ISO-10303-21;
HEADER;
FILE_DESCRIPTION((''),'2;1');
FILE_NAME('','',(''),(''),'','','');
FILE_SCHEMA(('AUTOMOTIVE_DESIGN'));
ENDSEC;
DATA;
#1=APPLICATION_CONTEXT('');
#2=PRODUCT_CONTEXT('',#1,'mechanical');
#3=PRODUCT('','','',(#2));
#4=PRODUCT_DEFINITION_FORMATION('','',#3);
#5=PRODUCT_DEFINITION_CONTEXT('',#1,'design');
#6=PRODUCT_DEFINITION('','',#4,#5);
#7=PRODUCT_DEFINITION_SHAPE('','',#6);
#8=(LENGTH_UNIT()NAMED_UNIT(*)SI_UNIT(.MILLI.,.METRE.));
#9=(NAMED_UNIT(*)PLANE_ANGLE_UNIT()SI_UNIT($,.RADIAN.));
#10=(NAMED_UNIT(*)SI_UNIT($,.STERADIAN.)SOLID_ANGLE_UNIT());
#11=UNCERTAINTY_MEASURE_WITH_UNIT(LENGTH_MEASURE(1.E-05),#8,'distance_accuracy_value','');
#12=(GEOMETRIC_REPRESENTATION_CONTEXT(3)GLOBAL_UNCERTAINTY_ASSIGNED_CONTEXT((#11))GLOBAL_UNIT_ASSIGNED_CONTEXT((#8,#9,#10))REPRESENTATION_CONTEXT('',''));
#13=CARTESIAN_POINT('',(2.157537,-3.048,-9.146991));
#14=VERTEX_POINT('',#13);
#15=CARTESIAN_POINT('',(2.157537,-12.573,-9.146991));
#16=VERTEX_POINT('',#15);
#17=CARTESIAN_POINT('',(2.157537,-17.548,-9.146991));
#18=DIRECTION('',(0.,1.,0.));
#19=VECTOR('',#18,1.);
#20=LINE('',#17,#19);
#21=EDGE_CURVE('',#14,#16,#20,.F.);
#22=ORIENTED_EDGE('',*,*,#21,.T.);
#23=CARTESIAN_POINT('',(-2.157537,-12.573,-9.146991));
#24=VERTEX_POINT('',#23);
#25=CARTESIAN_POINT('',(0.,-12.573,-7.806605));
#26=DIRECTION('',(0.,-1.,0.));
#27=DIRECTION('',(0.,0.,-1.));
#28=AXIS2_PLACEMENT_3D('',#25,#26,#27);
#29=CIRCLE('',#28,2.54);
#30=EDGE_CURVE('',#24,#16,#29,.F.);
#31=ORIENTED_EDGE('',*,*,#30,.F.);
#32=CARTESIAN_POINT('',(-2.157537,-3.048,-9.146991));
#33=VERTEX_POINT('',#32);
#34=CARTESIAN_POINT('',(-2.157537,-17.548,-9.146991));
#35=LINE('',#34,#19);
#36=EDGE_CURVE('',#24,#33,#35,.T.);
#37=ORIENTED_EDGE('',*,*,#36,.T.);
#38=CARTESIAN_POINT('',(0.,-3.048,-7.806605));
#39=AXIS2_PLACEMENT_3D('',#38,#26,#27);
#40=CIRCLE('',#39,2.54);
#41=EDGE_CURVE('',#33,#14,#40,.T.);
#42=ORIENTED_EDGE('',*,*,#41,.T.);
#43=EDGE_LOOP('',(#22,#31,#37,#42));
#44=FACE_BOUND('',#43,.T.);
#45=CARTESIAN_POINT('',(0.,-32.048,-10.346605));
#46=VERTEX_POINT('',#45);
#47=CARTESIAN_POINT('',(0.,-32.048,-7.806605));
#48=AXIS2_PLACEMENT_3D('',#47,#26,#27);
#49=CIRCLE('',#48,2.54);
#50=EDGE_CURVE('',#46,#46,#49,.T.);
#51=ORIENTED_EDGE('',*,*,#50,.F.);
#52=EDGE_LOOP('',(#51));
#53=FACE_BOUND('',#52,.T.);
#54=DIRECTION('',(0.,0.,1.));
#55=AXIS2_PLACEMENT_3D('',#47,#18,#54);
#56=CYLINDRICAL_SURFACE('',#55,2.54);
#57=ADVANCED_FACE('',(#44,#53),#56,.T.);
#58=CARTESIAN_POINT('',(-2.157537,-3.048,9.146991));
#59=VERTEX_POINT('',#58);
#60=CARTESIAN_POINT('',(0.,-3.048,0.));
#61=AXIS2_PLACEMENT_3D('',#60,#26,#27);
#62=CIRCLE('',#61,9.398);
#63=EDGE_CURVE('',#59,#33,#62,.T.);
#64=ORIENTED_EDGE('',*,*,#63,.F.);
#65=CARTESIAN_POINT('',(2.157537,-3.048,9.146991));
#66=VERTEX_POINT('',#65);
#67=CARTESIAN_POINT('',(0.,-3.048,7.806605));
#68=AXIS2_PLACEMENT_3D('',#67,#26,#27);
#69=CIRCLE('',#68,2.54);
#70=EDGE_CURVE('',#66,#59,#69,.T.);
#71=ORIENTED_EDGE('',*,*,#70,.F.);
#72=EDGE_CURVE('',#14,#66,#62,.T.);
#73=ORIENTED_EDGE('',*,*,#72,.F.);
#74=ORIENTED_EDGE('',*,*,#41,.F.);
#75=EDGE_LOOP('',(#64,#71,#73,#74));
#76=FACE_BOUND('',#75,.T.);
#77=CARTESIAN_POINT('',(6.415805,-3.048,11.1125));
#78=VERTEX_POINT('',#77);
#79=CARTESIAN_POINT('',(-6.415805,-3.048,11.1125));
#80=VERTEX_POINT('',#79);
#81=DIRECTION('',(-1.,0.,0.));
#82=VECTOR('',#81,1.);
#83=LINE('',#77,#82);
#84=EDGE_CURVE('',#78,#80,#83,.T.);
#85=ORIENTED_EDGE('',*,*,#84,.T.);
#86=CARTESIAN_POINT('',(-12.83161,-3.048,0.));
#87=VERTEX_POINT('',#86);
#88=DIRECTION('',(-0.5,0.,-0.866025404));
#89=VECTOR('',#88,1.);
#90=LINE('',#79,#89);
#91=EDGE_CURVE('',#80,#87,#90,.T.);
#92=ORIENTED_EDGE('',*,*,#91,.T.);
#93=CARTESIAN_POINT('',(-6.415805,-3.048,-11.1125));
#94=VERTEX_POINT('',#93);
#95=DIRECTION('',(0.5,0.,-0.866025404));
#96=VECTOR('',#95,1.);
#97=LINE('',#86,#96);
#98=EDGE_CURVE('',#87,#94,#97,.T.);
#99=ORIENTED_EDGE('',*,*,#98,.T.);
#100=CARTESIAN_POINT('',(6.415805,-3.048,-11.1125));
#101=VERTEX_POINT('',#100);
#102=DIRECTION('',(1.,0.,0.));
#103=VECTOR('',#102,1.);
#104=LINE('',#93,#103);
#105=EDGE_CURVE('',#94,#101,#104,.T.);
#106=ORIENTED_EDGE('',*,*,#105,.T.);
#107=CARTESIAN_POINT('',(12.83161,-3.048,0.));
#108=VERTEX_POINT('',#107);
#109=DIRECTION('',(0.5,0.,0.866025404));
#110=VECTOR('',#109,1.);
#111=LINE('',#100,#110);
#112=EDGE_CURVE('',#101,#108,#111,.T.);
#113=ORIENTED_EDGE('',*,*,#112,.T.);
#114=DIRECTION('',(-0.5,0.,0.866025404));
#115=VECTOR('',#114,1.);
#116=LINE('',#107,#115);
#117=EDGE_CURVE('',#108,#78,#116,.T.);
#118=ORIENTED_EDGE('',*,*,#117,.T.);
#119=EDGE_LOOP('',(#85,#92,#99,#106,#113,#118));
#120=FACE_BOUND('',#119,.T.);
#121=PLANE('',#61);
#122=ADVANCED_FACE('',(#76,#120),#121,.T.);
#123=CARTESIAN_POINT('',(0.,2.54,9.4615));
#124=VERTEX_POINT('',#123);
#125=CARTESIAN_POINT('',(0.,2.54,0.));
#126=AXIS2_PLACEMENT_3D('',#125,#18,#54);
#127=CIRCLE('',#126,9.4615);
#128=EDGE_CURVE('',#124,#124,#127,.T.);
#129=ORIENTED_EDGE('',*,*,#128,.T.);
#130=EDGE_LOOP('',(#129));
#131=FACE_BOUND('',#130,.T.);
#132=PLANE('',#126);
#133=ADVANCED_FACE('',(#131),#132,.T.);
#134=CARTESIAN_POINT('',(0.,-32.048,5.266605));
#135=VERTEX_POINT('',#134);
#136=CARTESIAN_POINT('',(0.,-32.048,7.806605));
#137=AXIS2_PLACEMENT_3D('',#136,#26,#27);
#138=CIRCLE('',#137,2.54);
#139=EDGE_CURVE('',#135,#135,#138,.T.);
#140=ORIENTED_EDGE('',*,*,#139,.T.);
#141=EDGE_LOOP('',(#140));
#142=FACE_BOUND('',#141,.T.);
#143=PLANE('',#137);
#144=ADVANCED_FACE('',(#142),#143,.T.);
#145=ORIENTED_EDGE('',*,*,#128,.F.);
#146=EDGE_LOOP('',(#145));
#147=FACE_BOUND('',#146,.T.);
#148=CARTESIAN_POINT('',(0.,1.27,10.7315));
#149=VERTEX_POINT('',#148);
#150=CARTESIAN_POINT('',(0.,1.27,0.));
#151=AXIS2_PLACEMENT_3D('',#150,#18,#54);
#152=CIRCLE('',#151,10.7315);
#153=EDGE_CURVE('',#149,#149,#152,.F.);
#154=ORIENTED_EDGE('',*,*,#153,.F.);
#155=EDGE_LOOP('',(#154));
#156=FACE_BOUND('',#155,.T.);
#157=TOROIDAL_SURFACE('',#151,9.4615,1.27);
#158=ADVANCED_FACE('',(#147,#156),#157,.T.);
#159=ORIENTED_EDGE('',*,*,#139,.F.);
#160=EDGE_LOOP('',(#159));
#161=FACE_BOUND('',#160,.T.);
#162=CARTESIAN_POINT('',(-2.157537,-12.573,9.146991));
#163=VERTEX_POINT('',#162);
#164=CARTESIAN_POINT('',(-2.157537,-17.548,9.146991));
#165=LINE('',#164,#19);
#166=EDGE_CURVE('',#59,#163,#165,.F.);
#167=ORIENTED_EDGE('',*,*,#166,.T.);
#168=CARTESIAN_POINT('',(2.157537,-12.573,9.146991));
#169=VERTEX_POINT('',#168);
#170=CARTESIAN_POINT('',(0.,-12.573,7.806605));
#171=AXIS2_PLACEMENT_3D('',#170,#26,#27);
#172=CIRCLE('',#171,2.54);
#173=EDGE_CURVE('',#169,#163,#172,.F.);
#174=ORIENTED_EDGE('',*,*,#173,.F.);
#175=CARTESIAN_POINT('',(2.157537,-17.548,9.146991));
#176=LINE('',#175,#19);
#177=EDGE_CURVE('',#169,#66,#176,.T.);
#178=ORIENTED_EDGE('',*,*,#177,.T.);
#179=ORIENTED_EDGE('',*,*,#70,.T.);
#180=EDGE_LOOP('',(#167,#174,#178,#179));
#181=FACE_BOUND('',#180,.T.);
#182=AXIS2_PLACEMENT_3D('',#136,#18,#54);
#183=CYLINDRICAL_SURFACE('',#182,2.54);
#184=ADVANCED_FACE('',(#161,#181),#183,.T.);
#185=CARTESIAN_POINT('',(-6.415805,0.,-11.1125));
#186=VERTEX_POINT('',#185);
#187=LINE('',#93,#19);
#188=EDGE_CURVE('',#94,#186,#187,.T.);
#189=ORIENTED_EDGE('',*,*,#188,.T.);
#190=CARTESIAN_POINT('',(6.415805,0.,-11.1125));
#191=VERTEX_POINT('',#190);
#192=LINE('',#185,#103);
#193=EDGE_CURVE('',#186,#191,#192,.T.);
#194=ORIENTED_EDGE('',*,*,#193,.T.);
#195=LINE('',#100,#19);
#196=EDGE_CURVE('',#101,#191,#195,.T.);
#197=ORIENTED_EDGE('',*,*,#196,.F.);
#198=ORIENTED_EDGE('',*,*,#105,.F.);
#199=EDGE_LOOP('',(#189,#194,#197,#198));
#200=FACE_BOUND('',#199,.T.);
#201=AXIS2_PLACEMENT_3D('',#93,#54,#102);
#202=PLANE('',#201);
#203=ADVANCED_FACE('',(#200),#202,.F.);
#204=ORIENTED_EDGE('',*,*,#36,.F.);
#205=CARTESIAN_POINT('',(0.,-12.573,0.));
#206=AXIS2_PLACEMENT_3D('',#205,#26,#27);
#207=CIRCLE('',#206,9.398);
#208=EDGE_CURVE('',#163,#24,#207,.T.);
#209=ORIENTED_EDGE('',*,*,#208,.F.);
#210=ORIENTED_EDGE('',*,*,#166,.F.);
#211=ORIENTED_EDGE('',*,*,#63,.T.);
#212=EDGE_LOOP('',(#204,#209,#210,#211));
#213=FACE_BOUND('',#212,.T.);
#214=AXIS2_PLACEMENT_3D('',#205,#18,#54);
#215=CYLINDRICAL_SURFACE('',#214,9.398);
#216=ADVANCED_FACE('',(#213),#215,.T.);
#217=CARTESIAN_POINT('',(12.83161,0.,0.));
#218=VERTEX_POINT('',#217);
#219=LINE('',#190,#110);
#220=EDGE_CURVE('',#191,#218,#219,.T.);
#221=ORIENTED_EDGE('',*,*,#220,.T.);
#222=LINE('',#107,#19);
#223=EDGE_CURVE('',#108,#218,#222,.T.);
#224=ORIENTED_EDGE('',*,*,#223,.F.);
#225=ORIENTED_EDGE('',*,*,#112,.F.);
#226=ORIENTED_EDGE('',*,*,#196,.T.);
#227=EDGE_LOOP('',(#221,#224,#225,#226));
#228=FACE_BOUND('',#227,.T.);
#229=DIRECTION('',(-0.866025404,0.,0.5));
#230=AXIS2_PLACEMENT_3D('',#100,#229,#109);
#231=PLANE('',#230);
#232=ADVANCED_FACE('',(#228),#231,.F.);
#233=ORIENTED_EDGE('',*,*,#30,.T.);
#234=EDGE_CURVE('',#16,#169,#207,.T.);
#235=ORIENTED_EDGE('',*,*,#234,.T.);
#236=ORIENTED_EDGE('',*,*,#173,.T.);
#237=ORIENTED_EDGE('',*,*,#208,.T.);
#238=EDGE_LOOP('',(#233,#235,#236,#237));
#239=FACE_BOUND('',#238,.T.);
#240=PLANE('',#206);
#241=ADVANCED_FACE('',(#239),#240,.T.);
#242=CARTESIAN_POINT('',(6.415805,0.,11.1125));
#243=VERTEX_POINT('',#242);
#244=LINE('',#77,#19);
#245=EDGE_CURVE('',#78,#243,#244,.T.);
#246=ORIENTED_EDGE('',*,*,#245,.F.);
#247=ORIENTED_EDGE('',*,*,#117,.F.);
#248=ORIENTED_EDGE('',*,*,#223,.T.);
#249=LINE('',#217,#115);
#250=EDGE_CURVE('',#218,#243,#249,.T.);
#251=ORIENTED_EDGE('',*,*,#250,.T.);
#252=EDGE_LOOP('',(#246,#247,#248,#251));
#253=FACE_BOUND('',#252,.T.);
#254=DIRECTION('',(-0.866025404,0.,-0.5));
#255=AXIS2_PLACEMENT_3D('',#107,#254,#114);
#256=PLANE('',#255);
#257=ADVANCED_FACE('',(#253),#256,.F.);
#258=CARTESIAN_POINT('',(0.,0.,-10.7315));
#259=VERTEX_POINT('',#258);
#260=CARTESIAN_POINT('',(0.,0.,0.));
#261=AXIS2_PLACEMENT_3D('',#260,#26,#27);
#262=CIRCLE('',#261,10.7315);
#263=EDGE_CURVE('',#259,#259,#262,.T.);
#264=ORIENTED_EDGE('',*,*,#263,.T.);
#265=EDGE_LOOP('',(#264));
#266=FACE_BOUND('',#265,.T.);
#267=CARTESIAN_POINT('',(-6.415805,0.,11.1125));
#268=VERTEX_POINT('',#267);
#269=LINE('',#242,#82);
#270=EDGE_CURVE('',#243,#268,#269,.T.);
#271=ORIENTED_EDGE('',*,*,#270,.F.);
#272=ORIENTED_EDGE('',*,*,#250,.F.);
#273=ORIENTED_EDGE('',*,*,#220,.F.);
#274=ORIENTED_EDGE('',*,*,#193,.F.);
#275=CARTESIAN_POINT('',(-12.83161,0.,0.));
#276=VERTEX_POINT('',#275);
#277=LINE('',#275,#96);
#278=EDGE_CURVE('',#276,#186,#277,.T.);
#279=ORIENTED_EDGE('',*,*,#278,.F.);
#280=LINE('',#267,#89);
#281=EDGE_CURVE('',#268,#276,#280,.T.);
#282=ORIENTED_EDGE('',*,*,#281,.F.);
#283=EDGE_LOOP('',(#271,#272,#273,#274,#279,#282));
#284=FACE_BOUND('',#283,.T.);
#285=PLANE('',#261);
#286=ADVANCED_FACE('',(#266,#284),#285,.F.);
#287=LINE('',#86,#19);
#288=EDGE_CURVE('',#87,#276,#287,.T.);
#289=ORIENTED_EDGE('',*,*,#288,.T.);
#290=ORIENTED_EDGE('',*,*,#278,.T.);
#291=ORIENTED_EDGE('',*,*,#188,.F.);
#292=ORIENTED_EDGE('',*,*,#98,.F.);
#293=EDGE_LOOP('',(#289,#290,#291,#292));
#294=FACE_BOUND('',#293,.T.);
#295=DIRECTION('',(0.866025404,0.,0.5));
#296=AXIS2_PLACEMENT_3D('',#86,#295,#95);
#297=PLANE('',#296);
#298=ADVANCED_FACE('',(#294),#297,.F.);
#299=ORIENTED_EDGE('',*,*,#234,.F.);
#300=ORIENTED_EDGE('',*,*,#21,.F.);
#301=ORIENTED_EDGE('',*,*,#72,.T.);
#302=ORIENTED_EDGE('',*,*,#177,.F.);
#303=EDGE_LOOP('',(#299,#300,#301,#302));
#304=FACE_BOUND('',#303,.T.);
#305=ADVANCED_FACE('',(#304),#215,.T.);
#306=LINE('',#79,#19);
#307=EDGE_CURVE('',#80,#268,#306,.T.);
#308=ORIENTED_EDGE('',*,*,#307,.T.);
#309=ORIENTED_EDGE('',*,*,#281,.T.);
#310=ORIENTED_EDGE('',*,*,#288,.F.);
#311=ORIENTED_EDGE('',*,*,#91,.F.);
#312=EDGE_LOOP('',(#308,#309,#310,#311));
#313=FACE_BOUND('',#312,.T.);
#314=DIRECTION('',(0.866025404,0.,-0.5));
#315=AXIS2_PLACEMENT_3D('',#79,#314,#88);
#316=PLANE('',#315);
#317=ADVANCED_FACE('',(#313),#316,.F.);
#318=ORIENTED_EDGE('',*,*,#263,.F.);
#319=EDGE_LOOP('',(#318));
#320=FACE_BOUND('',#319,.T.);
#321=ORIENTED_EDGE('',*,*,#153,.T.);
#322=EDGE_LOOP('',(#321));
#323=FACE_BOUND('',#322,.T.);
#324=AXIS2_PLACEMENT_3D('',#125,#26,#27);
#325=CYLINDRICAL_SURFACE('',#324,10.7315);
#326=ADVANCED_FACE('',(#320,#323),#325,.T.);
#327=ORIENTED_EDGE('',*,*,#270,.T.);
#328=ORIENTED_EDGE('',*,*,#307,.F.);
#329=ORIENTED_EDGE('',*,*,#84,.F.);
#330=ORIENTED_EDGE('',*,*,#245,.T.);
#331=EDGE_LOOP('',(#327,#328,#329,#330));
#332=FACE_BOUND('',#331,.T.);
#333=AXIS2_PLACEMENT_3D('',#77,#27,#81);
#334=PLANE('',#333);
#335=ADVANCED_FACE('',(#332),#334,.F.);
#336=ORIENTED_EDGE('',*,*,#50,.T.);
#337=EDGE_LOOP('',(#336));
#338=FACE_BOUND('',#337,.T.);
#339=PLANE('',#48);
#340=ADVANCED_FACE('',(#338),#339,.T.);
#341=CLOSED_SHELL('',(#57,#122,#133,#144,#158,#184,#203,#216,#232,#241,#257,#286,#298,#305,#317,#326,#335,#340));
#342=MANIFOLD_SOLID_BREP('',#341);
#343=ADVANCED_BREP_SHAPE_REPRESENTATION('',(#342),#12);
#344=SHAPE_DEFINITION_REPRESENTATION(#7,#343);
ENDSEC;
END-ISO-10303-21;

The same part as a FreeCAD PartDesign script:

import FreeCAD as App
import Part
import Sketcher

V = App.Vector
Q = App.Units.Quantity


def edges_at(feature, points):
    """Names of the edges that pass closest to the given points."""
    edges = feature.Shape.Edges
    near = lambda p: min(range(len(edges)), key=lambda i: edges[i].distToShape(Part.Vertex(*p))[0])
    return sorted({f"Edge{near(p) + 1}" for p in points})

doc = App.newDocument("Part")
params = doc.addObject("Spreadsheet::Sheet", "Params")
for row, (alias, value) in enumerate([
    ("sketch1_diameter", "0.845 in"),
    ("pad1_length", "0.1 in"),
    ("pad2_length", "0.12 in"),
    ("sketch3_diameter", "0.74 in"),
    ("pad3_length", "0.375 in"),
    ("sketch4_diameter", "0.2 in"),
    ("pad4_length", "29 mm"),
    ("fillet_radius", "0.05 in"),
], start=1):
    params.set(f"A{row}", alias)
    params.set(f"B{row}", "=" + value)
    params.setAlias(f"B{row}", alias)

body = doc.addObject("PartDesign::Body", "Body")

# Sketch on XZ plane
sketch1 = body.newObject("Sketcher::SketchObject", "Sketch")
sketch1.AttachmentSupport = (doc.getObject("XZ_Plane"), [""])
sketch1.MapMode = "FlatFace"
sketch1.addGeometry(Part.Circle(V(0, 0, 0), V(0, 0, 1), 11), False)
sketch1.addConstraint(Sketcher.Constraint("Coincident", 0, 3, -1, 1))
sketch1.addConstraint(Sketcher.Constraint("Diameter", 0, Q("0.845 in")))
sketch1.setExpression("Constraints[1]", "Params.sketch1_diameter")
pad1 = body.newObject("PartDesign::Pad", "Pad")
pad1.Profile = sketch1
pad1.setExpression("Length", "Params.pad1_length")
pad1.Reversed = True

# Sketch on XZ plane
sketch2 = body.newObject("Sketcher::SketchObject", "Sketch001")
sketch2.AttachmentSupport = (doc.getObject("XZ_Plane"), [""])
sketch2.MapMode = "FlatFace"
sketch2.addGeometry(Part.LineSegment(V(-13, 0, 0), V(-6, -11, 0)), False)
sketch2.addGeometry(Part.LineSegment(V(-6, -11, 0), V(6, -11, 0)), False)
sketch2.addGeometry(Part.LineSegment(V(6, -11, 0), V(13, 0, 0)), False)
sketch2.addGeometry(Part.LineSegment(V(13, 0, 0), V(6, 11, 0)), False)
sketch2.addGeometry(Part.LineSegment(V(6, 11, 0), V(-6, 11, 0)), False)
sketch2.addGeometry(Part.LineSegment(V(-6, 11, 0), V(-13, 0, 0)), False)
sketch2.addConstraint(Sketcher.Constraint("Coincident", 0, 2, 1, 1))
sketch2.addConstraint(Sketcher.Constraint("Coincident", 1, 2, 2, 1))
sketch2.addConstraint(Sketcher.Constraint("Coincident", 2, 2, 3, 1))
sketch2.addConstraint(Sketcher.Constraint("Coincident", 3, 2, 4, 1))
sketch2.addConstraint(Sketcher.Constraint("Coincident", 4, 2, 5, 1))
sketch2.addConstraint(Sketcher.Constraint("Coincident", 5, 2, 0, 1))
sketch2.addConstraint(Sketcher.Constraint("Horizontal", 1))
sketch2.addConstraint(Sketcher.Constraint("Horizontal", 4))
sketch2.addConstraint(Sketcher.Constraint("Symmetric", 0, 2, 3, 2, -1, 1))
sketch2.addConstraint(Sketcher.Constraint("Symmetric", 2, 2, 5, 2, -1, 1))
sketch2.addConstraint(Sketcher.Constraint("PointOnObject", 2, 2, -1))
sketch2.addConstraint(Sketcher.Constraint("Parallel", 2, 5))
sketch2.addConstraint(Sketcher.Constraint("Vertical", 1, 2, 3, 2))
sketch2.addConstraint(Sketcher.Constraint("Angle", 0, Q("-60 deg")))
sketch2.addConstraint(Sketcher.Constraint("DistanceY", 0, 2, -1, 1, Q("0.4375 in")))
sketch2.addConstraint(Sketcher.Constraint("DistanceX", 1, 1, 1, 2, 12.83161))
pad2 = body.newObject("PartDesign::Pad", "Pad001")
pad2.Profile = sketch2
pad2.setExpression("Length", "Params.pad2_length")

# Sketch on XZ plane
sketch3 = body.newObject("Sketcher::SketchObject", "Sketch002")
sketch3.AttachmentSupport = (doc.getObject("XZ_Plane"), [""])
sketch3.MapMode = "FlatFace"
sketch3.AttachmentOffset = App.Placement(V(0, 0, 0.12 * 25.4), App.Rotation())
sketch3.addGeometry(Part.Circle(V(0, 0, 0), V(0, 0, 1), 9), False)
sketch3.addConstraint(Sketcher.Constraint("Coincident", 0, 3, -1, 1))
sketch3.addConstraint(Sketcher.Constraint("Diameter", 0, Q("0.74 in")))
sketch3.setExpression("Constraints[1]", "Params.sketch3_diameter")
pad3 = body.newObject("PartDesign::Pad", "Pad002")
pad3.Profile = sketch3
pad3.setExpression("Length", "Params.pad3_length")

# Sketch on XZ plane
sketch4 = body.newObject("Sketcher::SketchObject", "Sketch003")
sketch4.AttachmentSupport = (doc.getObject("XZ_Plane"), [""])
sketch4.MapMode = "FlatFace"
sketch4.AttachmentOffset = App.Placement(V(0, 0, 0.12 * 25.4), App.Rotation())
sketch4.addGeometry(Part.Circle(V(0, 7.8, 0), V(0, 0, 1), 2.5), False)
sketch4.addGeometry(Part.Circle(V(0, -7.8, 0), V(0, 0, 1), 2.5), False)
sketch4.addConstraint(Sketcher.Constraint("Equal", 0, 1))
sketch4.addConstraint(Sketcher.Constraint("Symmetric", 0, 3, 1, 3, -1, 1))
sketch4.addConstraint(Sketcher.Constraint("PointOnObject", 0, 3, -2))
sketch4.addConstraint(Sketcher.Constraint("Diameter", 0, Q("0.2 in")))
sketch4.addConstraint(Sketcher.Constraint("DistanceY", 1, 3, 0, 3, 15.61321))
sketch4.setExpression("Constraints[3]", "Params.sketch4_diameter")
pad4 = body.newObject("PartDesign::Pad", "Pad003")
pad4.Profile = sketch4
pad4.setExpression("Length", "Params.pad4_length")
doc.recompute()

fillet = body.newObject("PartDesign::Fillet", "Fillet")
fillet.Base = (pad4, edges_at(pad4, [(0, 2.54, -10.732)]))
fillet.setExpression("Radius", "Params.fillet_radius")

doc.recompute()
